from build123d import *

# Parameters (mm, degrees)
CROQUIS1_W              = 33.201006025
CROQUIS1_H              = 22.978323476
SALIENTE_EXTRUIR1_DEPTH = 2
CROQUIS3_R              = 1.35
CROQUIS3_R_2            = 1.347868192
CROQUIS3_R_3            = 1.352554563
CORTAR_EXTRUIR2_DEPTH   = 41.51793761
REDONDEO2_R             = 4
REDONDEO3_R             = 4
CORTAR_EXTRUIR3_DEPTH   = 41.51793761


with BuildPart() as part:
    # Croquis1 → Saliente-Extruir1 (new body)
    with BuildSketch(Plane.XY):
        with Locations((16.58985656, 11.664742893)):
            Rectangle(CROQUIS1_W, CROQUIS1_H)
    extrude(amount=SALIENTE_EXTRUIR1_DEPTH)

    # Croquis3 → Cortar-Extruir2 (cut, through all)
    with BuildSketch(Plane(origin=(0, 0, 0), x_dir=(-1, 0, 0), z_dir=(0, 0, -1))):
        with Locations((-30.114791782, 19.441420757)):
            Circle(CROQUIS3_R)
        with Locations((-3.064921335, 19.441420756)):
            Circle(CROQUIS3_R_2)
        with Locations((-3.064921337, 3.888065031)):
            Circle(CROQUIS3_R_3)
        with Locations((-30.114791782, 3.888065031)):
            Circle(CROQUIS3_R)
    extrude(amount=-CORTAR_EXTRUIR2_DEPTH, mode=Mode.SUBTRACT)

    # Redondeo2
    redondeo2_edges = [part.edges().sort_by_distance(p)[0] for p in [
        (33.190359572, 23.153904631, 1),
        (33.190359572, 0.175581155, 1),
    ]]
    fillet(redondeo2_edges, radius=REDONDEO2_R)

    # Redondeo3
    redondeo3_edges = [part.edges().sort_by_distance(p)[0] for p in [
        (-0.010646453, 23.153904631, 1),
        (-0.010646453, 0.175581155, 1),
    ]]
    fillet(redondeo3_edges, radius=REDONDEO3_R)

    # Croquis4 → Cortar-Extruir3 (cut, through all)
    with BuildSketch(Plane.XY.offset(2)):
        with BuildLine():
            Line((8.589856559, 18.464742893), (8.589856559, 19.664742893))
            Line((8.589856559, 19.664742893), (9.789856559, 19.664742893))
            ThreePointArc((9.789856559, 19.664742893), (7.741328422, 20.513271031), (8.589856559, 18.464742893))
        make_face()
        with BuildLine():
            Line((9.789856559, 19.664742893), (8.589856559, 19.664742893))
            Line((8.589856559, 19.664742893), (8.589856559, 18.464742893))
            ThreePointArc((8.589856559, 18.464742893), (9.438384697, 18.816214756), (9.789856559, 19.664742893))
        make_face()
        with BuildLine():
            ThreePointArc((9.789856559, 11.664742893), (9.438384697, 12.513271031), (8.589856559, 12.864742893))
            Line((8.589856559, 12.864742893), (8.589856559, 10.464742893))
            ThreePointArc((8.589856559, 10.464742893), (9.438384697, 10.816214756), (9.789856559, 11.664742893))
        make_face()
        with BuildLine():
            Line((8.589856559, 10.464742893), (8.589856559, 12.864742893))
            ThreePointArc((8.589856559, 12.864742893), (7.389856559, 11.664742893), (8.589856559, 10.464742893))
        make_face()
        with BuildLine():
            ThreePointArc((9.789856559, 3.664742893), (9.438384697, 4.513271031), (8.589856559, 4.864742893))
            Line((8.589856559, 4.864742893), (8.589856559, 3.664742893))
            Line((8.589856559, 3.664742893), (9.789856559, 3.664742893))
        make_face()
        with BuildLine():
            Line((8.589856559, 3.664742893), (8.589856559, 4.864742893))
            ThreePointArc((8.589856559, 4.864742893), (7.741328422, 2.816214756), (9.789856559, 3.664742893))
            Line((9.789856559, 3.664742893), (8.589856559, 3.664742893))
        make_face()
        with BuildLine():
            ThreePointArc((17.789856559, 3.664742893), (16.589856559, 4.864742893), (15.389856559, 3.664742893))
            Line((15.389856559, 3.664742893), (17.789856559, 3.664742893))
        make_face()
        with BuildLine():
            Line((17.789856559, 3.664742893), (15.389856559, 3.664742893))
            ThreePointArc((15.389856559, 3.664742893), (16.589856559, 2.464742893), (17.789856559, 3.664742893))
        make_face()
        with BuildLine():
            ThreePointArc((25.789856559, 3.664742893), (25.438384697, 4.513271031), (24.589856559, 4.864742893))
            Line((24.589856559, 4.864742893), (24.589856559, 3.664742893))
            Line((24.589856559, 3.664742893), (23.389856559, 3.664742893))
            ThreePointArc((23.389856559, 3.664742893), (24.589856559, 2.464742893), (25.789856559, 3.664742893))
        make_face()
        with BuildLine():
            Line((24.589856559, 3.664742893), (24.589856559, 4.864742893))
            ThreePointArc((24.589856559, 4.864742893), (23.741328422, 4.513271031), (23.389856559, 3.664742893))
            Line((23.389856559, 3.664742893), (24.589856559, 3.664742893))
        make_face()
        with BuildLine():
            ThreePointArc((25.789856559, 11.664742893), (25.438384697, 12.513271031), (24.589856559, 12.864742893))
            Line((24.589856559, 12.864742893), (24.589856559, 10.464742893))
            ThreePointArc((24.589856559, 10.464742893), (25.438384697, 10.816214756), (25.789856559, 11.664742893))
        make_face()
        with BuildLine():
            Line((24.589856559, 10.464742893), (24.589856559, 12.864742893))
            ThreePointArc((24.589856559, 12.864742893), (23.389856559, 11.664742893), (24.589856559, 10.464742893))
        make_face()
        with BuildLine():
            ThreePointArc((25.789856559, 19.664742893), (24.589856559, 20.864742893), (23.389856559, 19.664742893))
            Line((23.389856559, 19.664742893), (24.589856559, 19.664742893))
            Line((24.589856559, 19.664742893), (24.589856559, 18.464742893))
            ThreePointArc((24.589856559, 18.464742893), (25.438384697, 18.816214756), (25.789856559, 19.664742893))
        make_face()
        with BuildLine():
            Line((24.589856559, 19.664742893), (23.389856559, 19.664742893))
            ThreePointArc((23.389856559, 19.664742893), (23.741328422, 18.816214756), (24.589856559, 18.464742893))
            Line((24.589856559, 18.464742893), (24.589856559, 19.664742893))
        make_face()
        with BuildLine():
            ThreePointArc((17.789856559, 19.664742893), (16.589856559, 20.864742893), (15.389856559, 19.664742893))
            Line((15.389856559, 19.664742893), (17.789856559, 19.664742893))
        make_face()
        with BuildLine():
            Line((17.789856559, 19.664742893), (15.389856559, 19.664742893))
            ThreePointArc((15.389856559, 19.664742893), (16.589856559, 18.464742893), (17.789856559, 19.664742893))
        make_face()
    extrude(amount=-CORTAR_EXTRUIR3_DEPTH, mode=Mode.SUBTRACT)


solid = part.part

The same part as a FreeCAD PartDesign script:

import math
import FreeCAD as App
import Part
import Sketcher
from FreeCAD import Vector


def edges_at(feature, points):
    """Names of the edges that pass closest to the given points."""
    edges = feature.Shape.Edges
    near = lambda p: min(range(len(edges)), key=lambda i: edges[i].distToShape(Part.Vertex(*p))[0])
    return sorted({f"Edge{near(p) + 1}" for p in points})


def add_polygon(sketch, points):
    """Adds a closed chain of lines whose ends are joined by coincident constraints."""
    first, n = sketch.GeometryCount, len(points)
    for a, b in zip(points, points[1:] + points[:1]):
        sketch.addGeometry(Part.LineSegment(App.Vector(*a, 0), App.Vector(*b, 0)), False)
    for i in range(n):
        sketch.addConstraint(Sketcher.Constraint("Coincident", first + i, 2, first + (i + 1) % n, 1))

doc = App.newDocument("Part")
params = doc.addObject("Spreadsheet::Sheet", "Params")
for row, (alias, value) in enumerate([
    ("pad1_length", "2 mm"),
    ("sketch2_diameter", "2.7 mm"),
    ("fillet_radius", "4 mm"),
    ("fillet2_radius", "4 mm"),
    ("sketch3_diameter", "2.4 mm"),
], start=1):
    params.set(f"A{row}", alias)
    params.set(f"B{row}", "=" + value)
    params.setAlias(f"B{row}", alias)

body = doc.addObject("PartDesign::Body", "Body")

# Sketch on XY plane
sketch1 = body.newObject("Sketcher::SketchObject", "Sketch")
sketch1.AttachmentSupport = (doc.getObject("XY_Plane"), [""])
sketch1.MapMode = "FlatFace"
add_polygon(sketch1, [(-0.010646, 23.153905), (-0.010646, 0.175581), (33.19036, 0.175581), (33.19036, 23.153905)])  # lines 0-3
sketch1.addConstraint([
    Sketcher.Constraint("Vertical", 0),
    Sketcher.Constraint("Horizontal", 1),
    Sketcher.Constraint("Vertical", 2),
    Sketcher.Constraint("Horizontal", 3),
    Sketcher.Constraint("DistanceX", 1, 1, 1, 2, 33.201006),
    Sketcher.Constraint("DistanceY", 0, 2, 0, 1, 22.978323),
    Sketcher.Constraint("DistanceY", -1, 1, 0, 2, 0.175581),
    Sketcher.Constraint("DistanceX", -1, 1, 1, 2, 33.19036),
])
pad1 = body.newObject("PartDesign::Pad", "Pad")
pad1.Profile = sketch1
pad1.setExpression("Length", "Params.pad1_length")

# Sketch on XY plane
sketch2 = body.newObject("Sketcher::SketchObject", "Sketch001")
sketch2.AttachmentSupport = (doc.getObject("XY_Plane"), [""])
sketch2.MapMode = "FlatFace"
sketch2.addGeometry([
    Part.Circle(Vector(30.114792, 19.441421, 0), Vector(0, 0, 1), 1.35),
    Part.Circle(Vector(3.064921, 19.441421, 0), Vector(0, 0, 1), 1.347868),
    Part.Circle(Vector(3.064921, 3.888065, 0), Vector(0, 0, 1), 1.352555),
    Part.Circle(Vector(30.114792, 3.888065, 0), Vector(0, 0, 1), 1.35),
], False)
sketch2.addConstraint([
    Sketcher.Constraint("Equal", 0, 3),
    Sketcher.Constraint("Horizontal", 0, 3, 1, 3),
    Sketcher.Constraint("Horizontal", 2, 3, 3, 3),
    Sketcher.Constraint("Vertical", 1, 3, 2, 3),
    Sketcher.Constraint("Vertical", 0, 3, 3, 3),
    Sketcher.Constraint("Diameter", 0, 2.7),
    Sketcher.Constraint("Diameter", 2, 2.705109),
    Sketcher.Constraint("Diameter", 1, 2.695736),
    Sketcher.Constraint("DistanceX", -1, 1, 0, 3, 30.114792),
    Sketcher.Constraint("DistanceY", -1, 1, 0, 3, 19.441421),
    Sketcher.Constraint("DistanceX", -1, 1, 1, 3, 3.064921),
    Sketcher.Constraint("DistanceY", -1, 1, 2, 3, 3.888065),
])
sketch2.setExpression("Constraints[5]", "Params.sketch2_diameter")
pocket1 = body.newObject("PartDesign::Pocket", "Pocket")
pocket1.Profile = sketch2
pocket1.Type = "ThroughAll"
pocket1.Reversed = True
doc.recompute()

fillet = body.newObject("PartDesign::Fillet", "Fillet")
fillet.Base = (pocket1, edges_at(pocket1, [(33.19, 23.154, 1), (33.19, 0.176, 1)]))
fillet.setExpression("Radius", "Params.fillet_radius")
doc.recompute()

fillet2 = body.newObject("PartDesign::Fillet", "Fillet001")
fillet2.Base = (fillet, edges_at(fillet, [(-0.011, 23.154, 1), (-0.011, 0.176, 1)]))
fillet2.setExpression("Radius", "Params.fillet2_radius")

# Sketch on XY plane
sketch3 = body.newObject("Sketcher::SketchObject", "Sketch002")
sketch3.AttachmentSupport = (doc.getObject("XY_Plane"), [""])
sketch3.MapMode = "FlatFace"
sketch3.AttachmentOffset = App.Placement(Vector(0, 0, 2), App.Rotation())
sketch3.addGeometry([
    Part.ArcOfCircle(Part.Circle(Vector(8.589857, 19.664743, 0), Vector(0, 0, 1), 1.2), math.radians(0), math.radians(270)),  # 0
    Part.ArcOfCircle(Part.Circle(Vector(8.589857, 19.664743, 0), Vector(0, 0, 1), 1.2), math.radians(-90), math.radians(0)),  # 1
    Part.ArcOfCircle(Part.Circle(Vector(8.589857, 11.664743, 0), Vector(0, 0, 1), 1.2), math.radians(0), math.radians(90)),  # 2
    Part.ArcOfCircle(Part.Circle(Vector(8.589857, 11.664743, 0), Vector(0, 0, 1), 1.2), math.radians(90), math.radians(270)),  # 3
    Part.ArcOfCircle(Part.Circle(Vector(8.589857, 11.664743, 0), Vector(0, 0, 1), 1.2), math.radians(-90), math.radians(0)),  # 4
    Part.ArcOfCircle(Part.Circle(Vector(8.589857, 3.664743, 0), Vector(0, 0, 1), 1.2), math.radians(0), math.radians(90)),  # 5
    Part.ArcOfCircle(Part.Circle(Vector(8.589857, 3.664743, 0), Vector(0, 0, 1), 1.2), math.radians(90), math.radians(360)),  # 6
    Part.Circle(Vector(16.589857, 3.664743, 0), Vector(0, 0, 1), 1.2),  # 7
    Part.ArcOfCircle(Part.Circle(Vector(24.589857, 3.664743, 0), Vector(0, 0, 1), 1.2), math.radians(0), math.radians(90)),  # 8
    Part.ArcOfCircle(Part.Circle(Vector(24.589857, 3.664743, 0), Vector(0, 0, 1), 1.2), math.radians(90), math.radians(180)),  # 9
    Part.ArcOfCircle(Part.Circle(Vector(24.589857, 3.664743, 0), Vector(0, 0, 1), 1.2), math.radians(180), math.radians(360)),  # 10
    Part.ArcOfCircle(Part.Circle(Vector(24.589857, 11.664743, 0), Vector(0, 0, 1), 1.2), math.radians(0), math.radians(90)),  # 11
    Part.ArcOfCircle(Part.Circle(Vector(24.589857, 11.664743, 0), Vector(0, 0, 1), 1.2), math.radians(90), math.radians(270)),  # 12
    Part.ArcOfCircle(Part.Circle(Vector(24.589857, 11.664743, 0), Vector(0, 0, 1), 1.2), math.radians(-90), math.radians(0)),  # 13
    Part.ArcOfCircle(Part.Circle(Vector(24.589857, 19.664743, 0), Vector(0, 0, 1), 1.2), math.radians(0), math.radians(180)),  # 14
    Part.ArcOfCircle(Part.Circle(Vector(24.589857, 19.664743, 0), Vector(0, 0, 1), 1.2), math.radians(-180), math.radians(-90)),  # 15
    Part.ArcOfCircle(Part.Circle(Vector(24.589857, 19.664743, 0), Vector(0, 0, 1), 1.2), math.radians(-90), math.radians(0)),  # 16
    Part.Circle(Vector(16.589857, 19.664743, 0), Vector(0, 0, 1), 1.2),  # 17
], False)
sketch3.addConstraint([
    Sketcher.Constraint("Tangent", 0, 1, 1, 2),
    Sketcher.Constraint("Coincident", 1, 1, 0, 2),
    Sketcher.Constraint("Tangent", 2, 2, 3, 1),
    Sketcher.Constraint("Tangent", 3, 2, 4, 1),
    Sketcher.Constraint("Tangent", 4, 2, 2, 1),
    Sketcher.Constraint("Tangent", 5, 1, 6, 2),
    Sketcher.Constraint("Coincident", 6, 1, 5, 2),
    Sketcher.Constraint("Tangent", 8, 2, 9, 1),
    Sketcher.Constraint("Tangent", 9, 2, 10, 1),
    Sketcher.Constraint("Tangent", 10, 2, 8, 1),
    Sketcher.Constraint("Tangent", 11, 2, 12, 1),
    Sketcher.Constraint("Tangent", 12, 2, 13, 1),
    Sketcher.Constraint("Tangent", 13, 2, 11, 1),
    Sketcher.Constraint("Tangent", 14, 2, 15, 1),
    Sketcher.Constraint("Tangent", 15, 2, 16, 1),
    Sketcher.Constraint("Tangent", 16, 2, 14, 1),
    Sketcher.Constraint("Equal", 1, 2),
    Sketcher.Constraint("Equal", 4, 5),
    Sketcher.Constraint("Equal", 6, 7),
    Sketcher.Constraint("Equal", 7, 8),
    Sketcher.Constraint("Equal", 10, 11),
    Sketcher.Constraint("Equal", 13, 14),
    Sketcher.Constraint("Equal", 16, 17),
    Sketcher.Constraint("Horizontal", 6, 3, 7, 3),
    Sketcher.Constraint("Horizontal", 7, 3, 8, 3),
    Sketcher.Constraint("Horizontal", 4, 3, 11, 3),
    Sketcher.Constraint("Horizontal", 1, 3, 14, 3),
    Sketcher.Constraint("Horizontal", 16, 3, 17, 3),
    Sketcher.Constraint("Horizontal", 17, 3, 0, 1),
    Sketcher.Constraint("Horizontal", 13, 3, 4, 2),
    Sketcher.Constraint("Horizontal", 10, 3, 5, 1),
    Sketcher.Constraint("Horizontal", 5, 1, 9, 2),
    Sketcher.Constraint("Horizontal", 9, 2, 10, 2),
    Sketcher.Constraint("Horizontal", 4, 2, 13, 2),
    Sketcher.Constraint("Horizontal", 0, 1, 14, 2),
    Sketcher.Constraint("Horizontal", 14, 2, 16, 2),
    Sketcher.Constraint("Vertical", 1, 3, 2, 3),
    Sketcher.Constraint("Vertical", 4, 3, 5, 3),
    Sketcher.Constraint("Vertical", 10, 3, 11, 3),
    Sketcher.Constraint("Vertical", 13, 3, 14, 3),
    Sketcher.Constraint("Vertical", 7, 3, 17, 3),
    Sketcher.Constraint("Vertical", 6, 3, 1, 1),
    Sketcher.Constraint("Vertical", 1, 1, 2, 2),
    Sketcher.Constraint("Vertical", 2, 2, 3, 2),
    Sketcher.Constraint("Vertical", 3, 2, 6, 1),
    Sketcher.Constraint("Vertical", 16, 3, 8, 2),
    Sketcher.Constraint("Vertical", 8, 2, 11, 2),
    Sketcher.Constraint("Vertical", 11, 2, 12, 2),
    Sketcher.Constraint("Vertical", 12, 2, 15, 2),
    Sketcher.Constraint("Diameter", 7, 2.4),
    Sketcher.Constraint("DistanceY", 2, 3, 0, 3, 8.0),
    Sketcher.Constraint("DistanceY", 5, 3, 3, 3, 8.0),
    Sketcher.Constraint("DistanceX", 5, 3, 7, 3, 8.0),
    Sketcher.Constraint("DistanceX", 7, 3, 8, 3, 8.0),
    Sketcher.Constraint("DistanceX", -1, 1, 0, 3, 8.589857),
    Sketcher.Constraint("DistanceY", -1, 1, 0, 3, 19.664743),
])
sketch3.setExpression("Constraints[49]", "Params.sketch3_diameter")
pocket2 = body.newObject("PartDesign::Pocket", "Pocket001")
pocket2.Profile = sketch3
pocket2.Type = "ThroughAll"

doc.recompute()
